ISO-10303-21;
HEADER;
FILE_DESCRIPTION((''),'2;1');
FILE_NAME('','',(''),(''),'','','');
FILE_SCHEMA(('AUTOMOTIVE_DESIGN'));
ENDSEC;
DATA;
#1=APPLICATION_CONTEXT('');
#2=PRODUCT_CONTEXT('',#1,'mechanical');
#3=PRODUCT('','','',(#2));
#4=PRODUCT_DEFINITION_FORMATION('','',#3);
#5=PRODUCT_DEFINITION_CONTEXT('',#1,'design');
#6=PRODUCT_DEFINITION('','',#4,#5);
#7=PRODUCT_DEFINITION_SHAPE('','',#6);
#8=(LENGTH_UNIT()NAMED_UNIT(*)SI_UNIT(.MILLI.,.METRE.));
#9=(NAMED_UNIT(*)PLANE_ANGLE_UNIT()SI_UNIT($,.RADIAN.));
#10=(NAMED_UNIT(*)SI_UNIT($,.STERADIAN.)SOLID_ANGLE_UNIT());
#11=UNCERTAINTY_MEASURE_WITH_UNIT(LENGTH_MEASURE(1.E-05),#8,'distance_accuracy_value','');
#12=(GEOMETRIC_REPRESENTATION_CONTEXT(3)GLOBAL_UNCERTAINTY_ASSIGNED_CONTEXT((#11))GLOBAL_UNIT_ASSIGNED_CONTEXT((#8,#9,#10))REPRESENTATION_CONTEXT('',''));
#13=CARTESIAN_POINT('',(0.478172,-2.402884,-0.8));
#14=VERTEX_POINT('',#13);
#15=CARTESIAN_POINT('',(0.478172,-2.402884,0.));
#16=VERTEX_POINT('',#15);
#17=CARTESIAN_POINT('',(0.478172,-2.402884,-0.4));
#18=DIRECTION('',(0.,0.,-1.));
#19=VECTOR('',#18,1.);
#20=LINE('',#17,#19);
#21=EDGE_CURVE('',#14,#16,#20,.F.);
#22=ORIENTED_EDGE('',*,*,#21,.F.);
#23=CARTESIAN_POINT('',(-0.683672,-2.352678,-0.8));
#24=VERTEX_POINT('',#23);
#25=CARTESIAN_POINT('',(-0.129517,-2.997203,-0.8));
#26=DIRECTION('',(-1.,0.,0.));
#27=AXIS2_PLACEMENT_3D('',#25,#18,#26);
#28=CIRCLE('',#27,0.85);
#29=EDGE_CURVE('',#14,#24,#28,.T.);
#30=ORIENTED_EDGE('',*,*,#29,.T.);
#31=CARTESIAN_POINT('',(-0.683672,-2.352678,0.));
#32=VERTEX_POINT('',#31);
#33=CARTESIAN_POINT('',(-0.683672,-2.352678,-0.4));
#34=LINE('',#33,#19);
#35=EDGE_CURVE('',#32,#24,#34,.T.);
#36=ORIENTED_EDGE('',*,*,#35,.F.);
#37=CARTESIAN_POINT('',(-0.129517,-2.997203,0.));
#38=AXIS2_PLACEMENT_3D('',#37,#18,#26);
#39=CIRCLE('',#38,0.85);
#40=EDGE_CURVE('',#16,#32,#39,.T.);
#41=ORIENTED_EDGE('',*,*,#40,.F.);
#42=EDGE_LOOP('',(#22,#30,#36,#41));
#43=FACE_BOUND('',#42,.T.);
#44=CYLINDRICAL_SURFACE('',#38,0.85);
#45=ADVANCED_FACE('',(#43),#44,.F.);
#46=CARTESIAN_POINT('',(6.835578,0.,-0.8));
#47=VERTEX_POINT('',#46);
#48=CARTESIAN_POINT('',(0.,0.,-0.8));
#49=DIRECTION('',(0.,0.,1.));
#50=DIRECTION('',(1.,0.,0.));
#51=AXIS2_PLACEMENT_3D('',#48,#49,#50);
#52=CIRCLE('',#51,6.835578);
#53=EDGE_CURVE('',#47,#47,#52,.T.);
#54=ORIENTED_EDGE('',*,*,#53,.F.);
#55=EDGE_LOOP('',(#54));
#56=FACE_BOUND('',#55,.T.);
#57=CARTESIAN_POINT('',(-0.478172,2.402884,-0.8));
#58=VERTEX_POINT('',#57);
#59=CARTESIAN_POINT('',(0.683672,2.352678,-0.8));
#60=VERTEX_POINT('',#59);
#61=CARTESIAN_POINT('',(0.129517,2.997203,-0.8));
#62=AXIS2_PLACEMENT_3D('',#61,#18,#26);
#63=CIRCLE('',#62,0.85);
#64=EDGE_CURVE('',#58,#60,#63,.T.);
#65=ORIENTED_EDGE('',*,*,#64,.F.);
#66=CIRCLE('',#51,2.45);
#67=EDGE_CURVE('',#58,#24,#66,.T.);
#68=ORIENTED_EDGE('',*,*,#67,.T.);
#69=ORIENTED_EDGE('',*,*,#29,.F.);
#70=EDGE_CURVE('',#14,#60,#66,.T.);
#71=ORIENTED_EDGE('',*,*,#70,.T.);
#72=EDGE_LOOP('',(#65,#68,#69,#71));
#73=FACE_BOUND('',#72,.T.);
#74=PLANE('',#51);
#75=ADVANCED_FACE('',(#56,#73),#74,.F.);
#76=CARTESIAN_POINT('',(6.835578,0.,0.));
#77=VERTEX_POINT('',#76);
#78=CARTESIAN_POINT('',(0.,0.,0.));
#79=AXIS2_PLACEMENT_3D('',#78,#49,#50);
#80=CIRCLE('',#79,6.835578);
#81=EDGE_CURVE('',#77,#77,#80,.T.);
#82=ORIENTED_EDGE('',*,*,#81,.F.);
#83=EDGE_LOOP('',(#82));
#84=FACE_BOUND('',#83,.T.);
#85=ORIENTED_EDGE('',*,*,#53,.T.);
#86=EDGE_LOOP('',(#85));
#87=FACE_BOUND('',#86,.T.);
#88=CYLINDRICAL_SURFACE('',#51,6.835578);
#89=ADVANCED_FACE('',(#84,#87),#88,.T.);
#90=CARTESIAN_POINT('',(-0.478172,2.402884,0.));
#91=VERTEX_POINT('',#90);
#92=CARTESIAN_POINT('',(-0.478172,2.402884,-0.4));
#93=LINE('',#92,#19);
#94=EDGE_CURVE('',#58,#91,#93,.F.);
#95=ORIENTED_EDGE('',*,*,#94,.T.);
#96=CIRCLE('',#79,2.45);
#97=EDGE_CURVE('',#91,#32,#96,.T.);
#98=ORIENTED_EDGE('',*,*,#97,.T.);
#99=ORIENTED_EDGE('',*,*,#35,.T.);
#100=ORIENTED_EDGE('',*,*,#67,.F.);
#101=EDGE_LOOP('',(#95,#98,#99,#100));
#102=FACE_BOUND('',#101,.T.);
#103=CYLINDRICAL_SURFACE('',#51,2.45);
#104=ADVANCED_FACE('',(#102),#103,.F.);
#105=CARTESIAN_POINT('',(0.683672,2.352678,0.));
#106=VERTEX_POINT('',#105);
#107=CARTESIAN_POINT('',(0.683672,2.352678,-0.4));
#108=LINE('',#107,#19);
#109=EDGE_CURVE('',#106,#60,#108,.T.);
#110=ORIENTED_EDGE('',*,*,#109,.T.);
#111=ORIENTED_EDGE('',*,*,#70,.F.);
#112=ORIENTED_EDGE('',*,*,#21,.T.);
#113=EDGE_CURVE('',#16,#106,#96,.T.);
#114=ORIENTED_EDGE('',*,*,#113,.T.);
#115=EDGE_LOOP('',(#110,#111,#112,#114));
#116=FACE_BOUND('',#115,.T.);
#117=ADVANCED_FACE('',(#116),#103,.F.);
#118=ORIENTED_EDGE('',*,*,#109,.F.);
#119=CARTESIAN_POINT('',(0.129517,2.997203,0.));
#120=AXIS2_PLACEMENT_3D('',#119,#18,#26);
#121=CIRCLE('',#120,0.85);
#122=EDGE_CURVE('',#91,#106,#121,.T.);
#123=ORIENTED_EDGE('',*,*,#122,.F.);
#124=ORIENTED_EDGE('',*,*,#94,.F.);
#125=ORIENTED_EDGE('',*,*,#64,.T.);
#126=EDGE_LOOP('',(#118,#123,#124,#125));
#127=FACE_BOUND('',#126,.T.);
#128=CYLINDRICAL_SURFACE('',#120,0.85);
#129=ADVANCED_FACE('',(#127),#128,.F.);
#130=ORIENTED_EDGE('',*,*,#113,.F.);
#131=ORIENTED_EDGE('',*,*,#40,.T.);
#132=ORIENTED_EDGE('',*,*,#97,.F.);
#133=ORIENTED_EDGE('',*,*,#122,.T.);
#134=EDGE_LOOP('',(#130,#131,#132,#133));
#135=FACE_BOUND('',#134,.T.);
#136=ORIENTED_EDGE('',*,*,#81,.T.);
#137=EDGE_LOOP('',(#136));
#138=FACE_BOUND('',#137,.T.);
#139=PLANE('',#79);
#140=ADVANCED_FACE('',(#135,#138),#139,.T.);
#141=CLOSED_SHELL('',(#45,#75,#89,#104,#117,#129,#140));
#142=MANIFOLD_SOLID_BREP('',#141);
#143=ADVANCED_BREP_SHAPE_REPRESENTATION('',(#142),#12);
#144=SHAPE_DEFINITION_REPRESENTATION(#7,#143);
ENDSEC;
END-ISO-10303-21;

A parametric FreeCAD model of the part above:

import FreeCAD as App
import Part
import Sketcher
from FreeCAD import Vector
Q = App.Units.Quantity

doc = App.newDocument("Part")
body = doc.addObject("PartDesign::Body", "Body")

sketch1 = body.newObject("Sketcher::SketchObject", "Sketch")
sketch1.AttachmentSupport = (doc.getObject("XY_Plane"), [""])
sketch1.MapMode = "FlatFace"
sketch1.addGeometry([
    Part.Circle(Vector(0, 0, 0), Vector(0, 0, 1), 6.835578),
    Part.Circle(Vector(0, 0, 0), Vector(0, 0, 1), 2.45),
], False)
sketch1.addConstraint([
    Sketcher.Constraint("Coincident", 0, 3, -1, 1),
    Sketcher.Constraint("Coincident", 1, 3, -1, 1),
    Sketcher.Constraint("Diameter", 1, Q("4.9 mm")),
    Sketcher.Constraint("Diameter", 0, Q("13.671156 mm")),
])
pad1 = body.newObject("PartDesign::Pad", "Pad")
pad1.Profile = sketch1
pad1.Length = 0.8
pad1.Reversed = True

sketch2 = body.newObject("Sketcher::SketchObject", "Sketch001")
sketch2.AttachmentSupport = (doc.getObject("XY_Plane"), [""])
sketch2.MapMode = "FlatFace"
sketch2.AttachmentOffset = App.Placement(Vector(0, 0, -0.8), App.Rotation())
sketch2.addGeometry([
    Part.Circle(Vector(0.129517, 2.997203, 0), Vector(0, 0, 1), 0.85),
    Part.Circle(Vector(-0.129517, -2.997203, 0), Vector(0, 0, 1), 0.85),
], False)
sketch2.addConstraint([
    Sketcher.Constraint("Equal", 0, 1),
    Sketcher.Constraint("Symmetric", 0, 3, 1, 3, -1, 1),
    Sketcher.Constraint("Diameter", 0, Q("1.7 mm")),
    Sketcher.Constraint("DistanceX", -1, 1, 0, 3, Q("0.129517 mm")),
    Sketcher.Constraint("DistanceY", -1, 1, 0, 3, Q("2.997203 mm")),
])
pocket1 = body.newObject("PartDesign::Pocket", "Pocket")
pocket1.Profile = sketch2
pocket1.Type = "ThroughAll"
pocket1.Reversed = True

doc.recompute()
